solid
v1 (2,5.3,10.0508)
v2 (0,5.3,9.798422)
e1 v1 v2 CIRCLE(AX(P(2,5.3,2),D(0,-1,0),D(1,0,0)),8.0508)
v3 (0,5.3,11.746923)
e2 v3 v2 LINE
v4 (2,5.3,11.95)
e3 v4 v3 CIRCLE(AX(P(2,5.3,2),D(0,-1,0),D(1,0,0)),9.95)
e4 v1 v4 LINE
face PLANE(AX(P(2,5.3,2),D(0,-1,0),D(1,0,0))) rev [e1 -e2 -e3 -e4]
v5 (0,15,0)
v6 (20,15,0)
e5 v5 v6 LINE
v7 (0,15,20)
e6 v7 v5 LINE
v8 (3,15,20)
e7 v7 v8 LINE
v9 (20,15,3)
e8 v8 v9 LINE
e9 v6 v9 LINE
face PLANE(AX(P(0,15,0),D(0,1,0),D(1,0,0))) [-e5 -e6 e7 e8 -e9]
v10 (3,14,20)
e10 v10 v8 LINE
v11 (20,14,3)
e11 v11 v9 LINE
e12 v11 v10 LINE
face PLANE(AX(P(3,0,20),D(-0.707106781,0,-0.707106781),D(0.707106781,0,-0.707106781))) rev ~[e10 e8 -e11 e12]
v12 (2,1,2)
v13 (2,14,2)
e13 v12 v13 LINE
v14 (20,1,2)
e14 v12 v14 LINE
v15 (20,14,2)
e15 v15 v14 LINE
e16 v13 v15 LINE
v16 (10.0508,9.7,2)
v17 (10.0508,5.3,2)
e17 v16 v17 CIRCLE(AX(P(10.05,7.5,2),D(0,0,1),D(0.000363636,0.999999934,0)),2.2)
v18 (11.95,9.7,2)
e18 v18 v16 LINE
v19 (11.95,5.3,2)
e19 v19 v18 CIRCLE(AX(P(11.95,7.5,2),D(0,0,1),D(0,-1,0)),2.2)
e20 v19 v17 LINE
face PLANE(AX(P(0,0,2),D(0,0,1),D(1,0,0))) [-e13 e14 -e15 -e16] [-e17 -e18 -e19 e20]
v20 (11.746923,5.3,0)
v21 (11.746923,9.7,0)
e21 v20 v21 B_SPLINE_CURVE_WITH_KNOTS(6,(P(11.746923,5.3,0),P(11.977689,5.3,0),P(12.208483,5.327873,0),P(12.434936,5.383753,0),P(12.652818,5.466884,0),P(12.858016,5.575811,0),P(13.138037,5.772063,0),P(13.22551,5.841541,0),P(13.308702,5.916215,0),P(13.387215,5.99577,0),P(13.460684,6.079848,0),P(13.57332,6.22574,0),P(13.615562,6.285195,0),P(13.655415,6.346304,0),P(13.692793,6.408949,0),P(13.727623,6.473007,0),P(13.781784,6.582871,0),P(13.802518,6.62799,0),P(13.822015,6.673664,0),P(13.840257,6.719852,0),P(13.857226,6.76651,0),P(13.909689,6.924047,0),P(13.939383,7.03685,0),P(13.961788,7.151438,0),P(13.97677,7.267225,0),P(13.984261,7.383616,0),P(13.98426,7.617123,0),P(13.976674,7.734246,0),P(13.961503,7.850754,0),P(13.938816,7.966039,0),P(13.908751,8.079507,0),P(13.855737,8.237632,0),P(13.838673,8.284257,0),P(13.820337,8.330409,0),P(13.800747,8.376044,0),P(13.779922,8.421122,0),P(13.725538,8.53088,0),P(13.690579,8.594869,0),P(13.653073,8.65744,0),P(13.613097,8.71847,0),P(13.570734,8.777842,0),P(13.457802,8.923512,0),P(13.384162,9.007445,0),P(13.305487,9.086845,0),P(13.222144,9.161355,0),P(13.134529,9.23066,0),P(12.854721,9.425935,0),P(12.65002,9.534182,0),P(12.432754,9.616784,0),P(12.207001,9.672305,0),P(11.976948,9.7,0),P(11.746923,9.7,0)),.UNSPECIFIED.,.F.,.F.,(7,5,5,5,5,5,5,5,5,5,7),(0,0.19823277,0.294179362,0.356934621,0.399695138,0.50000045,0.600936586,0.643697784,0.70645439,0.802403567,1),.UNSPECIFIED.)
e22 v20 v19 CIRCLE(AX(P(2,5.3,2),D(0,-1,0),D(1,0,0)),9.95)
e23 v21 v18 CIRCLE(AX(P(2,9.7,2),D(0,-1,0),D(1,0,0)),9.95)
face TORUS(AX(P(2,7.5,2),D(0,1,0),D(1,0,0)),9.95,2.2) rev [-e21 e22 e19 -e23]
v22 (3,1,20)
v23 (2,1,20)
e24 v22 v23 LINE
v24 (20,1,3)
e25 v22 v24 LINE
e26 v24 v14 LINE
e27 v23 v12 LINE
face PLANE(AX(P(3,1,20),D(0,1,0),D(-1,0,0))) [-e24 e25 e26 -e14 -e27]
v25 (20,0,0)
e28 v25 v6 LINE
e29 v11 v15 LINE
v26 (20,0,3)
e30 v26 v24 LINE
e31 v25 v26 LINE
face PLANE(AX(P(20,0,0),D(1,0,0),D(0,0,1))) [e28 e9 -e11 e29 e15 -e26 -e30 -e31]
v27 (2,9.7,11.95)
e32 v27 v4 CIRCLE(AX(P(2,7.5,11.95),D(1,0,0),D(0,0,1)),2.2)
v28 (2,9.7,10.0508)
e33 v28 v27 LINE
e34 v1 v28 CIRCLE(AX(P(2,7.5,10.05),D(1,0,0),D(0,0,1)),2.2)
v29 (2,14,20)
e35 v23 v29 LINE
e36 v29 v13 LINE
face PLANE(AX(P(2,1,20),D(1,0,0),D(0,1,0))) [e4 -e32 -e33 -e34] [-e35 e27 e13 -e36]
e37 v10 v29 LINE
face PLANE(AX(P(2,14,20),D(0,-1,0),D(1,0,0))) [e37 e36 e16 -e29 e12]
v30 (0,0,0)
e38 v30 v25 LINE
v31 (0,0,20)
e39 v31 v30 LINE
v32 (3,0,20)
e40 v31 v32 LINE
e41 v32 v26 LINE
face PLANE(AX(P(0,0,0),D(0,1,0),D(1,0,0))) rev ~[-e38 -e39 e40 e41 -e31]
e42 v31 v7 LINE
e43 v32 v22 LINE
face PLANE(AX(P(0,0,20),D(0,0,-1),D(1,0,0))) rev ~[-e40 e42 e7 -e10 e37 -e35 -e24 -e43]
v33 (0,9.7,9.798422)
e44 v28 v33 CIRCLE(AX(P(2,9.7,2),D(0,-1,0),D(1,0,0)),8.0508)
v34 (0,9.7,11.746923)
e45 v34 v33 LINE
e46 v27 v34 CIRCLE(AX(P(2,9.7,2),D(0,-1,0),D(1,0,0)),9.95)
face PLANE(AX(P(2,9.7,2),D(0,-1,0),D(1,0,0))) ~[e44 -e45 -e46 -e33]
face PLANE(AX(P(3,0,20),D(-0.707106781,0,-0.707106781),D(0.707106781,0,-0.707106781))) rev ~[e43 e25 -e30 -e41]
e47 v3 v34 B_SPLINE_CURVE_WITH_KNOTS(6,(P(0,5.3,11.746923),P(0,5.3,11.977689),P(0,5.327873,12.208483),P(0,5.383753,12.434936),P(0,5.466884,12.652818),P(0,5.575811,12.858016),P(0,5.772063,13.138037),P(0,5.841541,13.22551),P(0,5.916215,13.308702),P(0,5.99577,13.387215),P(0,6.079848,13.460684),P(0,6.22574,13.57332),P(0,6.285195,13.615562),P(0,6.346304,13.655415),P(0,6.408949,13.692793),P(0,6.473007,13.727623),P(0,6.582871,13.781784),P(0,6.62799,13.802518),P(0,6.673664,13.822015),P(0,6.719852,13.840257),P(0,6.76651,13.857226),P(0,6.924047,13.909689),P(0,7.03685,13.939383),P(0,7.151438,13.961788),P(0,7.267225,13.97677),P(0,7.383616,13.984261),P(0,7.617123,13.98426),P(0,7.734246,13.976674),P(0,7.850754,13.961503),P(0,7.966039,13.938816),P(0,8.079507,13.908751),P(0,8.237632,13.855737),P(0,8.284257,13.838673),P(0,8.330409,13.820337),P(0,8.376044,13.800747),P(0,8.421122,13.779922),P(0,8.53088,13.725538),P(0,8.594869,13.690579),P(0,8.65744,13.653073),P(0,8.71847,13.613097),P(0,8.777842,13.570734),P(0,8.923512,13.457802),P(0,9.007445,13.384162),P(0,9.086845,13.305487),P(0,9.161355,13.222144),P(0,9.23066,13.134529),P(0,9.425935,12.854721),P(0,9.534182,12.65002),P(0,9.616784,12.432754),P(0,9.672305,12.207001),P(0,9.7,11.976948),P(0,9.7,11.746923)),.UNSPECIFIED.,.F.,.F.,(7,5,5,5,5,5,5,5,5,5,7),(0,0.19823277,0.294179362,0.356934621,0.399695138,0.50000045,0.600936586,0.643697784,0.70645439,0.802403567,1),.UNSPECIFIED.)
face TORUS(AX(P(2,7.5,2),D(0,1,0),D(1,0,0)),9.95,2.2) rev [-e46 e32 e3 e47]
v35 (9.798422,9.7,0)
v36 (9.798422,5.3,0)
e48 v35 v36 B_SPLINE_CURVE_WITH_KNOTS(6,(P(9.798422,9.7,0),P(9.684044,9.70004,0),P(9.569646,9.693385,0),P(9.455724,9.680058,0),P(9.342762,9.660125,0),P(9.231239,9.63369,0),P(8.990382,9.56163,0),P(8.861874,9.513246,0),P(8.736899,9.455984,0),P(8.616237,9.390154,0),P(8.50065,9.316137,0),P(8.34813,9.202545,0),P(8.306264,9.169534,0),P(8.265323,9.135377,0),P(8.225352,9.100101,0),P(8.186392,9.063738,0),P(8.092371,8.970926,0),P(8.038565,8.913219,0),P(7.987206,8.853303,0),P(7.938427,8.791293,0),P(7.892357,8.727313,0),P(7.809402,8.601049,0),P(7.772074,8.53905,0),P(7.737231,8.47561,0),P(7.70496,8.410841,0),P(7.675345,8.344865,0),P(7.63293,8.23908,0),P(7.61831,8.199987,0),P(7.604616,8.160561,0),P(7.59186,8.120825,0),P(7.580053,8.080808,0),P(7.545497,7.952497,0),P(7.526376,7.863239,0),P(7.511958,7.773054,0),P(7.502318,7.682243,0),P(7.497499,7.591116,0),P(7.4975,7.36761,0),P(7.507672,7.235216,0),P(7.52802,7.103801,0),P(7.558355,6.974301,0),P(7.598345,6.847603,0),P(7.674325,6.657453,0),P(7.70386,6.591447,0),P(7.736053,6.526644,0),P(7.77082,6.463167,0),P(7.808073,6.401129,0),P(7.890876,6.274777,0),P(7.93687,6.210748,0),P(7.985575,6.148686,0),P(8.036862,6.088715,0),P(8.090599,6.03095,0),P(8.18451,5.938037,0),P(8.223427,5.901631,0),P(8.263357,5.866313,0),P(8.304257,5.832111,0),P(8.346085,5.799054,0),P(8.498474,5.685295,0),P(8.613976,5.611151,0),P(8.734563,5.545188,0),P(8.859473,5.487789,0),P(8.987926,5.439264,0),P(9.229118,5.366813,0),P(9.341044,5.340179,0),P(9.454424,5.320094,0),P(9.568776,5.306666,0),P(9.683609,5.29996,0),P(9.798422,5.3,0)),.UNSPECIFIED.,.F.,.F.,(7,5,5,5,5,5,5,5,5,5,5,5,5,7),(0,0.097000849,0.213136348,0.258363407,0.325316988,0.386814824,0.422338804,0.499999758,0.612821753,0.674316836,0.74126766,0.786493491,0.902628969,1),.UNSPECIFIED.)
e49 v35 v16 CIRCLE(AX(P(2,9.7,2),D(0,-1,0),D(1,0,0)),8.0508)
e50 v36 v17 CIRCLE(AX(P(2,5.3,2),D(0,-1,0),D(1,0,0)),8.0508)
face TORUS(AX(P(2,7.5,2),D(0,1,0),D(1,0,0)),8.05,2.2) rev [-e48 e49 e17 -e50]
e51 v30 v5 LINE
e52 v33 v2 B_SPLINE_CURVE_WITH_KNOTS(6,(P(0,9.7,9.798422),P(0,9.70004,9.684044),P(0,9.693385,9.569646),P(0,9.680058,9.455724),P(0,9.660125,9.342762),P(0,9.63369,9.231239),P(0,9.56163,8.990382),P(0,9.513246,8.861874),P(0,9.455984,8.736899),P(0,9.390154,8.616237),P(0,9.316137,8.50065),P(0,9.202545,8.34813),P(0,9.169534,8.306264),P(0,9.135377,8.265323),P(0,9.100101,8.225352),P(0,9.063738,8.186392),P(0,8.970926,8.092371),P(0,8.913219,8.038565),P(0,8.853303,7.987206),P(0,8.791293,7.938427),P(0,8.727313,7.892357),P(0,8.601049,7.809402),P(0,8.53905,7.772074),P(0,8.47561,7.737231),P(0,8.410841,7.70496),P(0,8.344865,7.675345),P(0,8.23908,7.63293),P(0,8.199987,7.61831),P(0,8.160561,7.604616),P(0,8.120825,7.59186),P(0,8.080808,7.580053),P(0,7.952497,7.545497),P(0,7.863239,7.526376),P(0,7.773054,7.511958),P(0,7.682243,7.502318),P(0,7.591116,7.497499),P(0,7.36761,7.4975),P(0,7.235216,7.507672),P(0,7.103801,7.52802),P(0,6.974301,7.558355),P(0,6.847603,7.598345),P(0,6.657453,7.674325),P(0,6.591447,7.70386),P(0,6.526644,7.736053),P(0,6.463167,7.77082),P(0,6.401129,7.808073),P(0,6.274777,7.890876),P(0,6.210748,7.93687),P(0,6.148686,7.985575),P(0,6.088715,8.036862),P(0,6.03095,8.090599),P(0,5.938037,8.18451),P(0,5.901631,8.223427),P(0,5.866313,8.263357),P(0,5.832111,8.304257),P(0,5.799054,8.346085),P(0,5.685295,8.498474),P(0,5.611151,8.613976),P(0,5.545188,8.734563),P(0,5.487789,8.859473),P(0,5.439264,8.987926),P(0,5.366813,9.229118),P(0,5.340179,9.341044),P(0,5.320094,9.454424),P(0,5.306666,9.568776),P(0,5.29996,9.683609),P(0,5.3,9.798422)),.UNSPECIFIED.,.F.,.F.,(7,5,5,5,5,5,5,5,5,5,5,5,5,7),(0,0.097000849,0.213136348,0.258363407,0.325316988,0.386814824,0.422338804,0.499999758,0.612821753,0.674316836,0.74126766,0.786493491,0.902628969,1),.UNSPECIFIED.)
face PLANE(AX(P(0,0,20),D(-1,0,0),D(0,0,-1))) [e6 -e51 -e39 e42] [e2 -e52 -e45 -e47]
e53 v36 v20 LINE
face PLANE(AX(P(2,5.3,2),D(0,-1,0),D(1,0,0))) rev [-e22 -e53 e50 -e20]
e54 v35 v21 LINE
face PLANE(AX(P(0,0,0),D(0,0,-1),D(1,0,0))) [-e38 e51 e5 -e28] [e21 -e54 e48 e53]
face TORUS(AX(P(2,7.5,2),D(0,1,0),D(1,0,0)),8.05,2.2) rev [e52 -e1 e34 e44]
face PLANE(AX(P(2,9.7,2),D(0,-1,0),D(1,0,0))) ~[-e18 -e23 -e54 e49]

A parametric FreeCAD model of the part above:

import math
import FreeCAD as App
import Part
import Sketcher

doc = App.newDocument("Part")
body = doc.addObject("PartDesign::Body", "Body")

sketch1 = body.newObject("Sketcher::SketchObject", "Sketch")
sketch1.AttachmentSupport = (doc.getObject("XZ_Plane"), [""])
sketch1.MapMode = "FlatFace"
sketch1.addGeometry(Part.LineSegment(App.Vector(20, 0, 0), App.Vector(0, 0, 0)), False)
sketch1.addGeometry(Part.LineSegment(App.Vector(0, 0, 0), App.Vector(0, 20, 0)), False)
sketch1.addGeometry(Part.LineSegment(App.Vector(0, 20, 0), App.Vector(3, 20, 0)), False)
sketch1.addGeometry(Part.LineSegment(App.Vector(3, 20, 0), App.Vector(20, 3, 0)), False)
sketch1.addGeometry(Part.LineSegment(App.Vector(20, 3, 0), App.Vector(20, 0, 0)), False)
sketch1.addConstraint(Sketcher.Constraint("Coincident", 0, 2, 1, 1))
sketch1.addConstraint(Sketcher.Constraint("Coincident", 1, 2, 2, 1))
sketch1.addConstraint(Sketcher.Constraint("Coincident", 2, 2, 3, 1))
sketch1.addConstraint(Sketcher.Constraint("Coincident", 3, 2, 4, 1))
sketch1.addConstraint(Sketcher.Constraint("Coincident", 4, 2, 0, 1))
sketch1.addConstraint(Sketcher.Constraint("Horizontal", 0))
sketch1.addConstraint(Sketcher.Constraint("Vertical", 1))
sketch1.addConstraint(Sketcher.Constraint("Horizontal", 2))
sketch1.addConstraint(Sketcher.Constraint("Vertical", 4))
sketch1.addConstraint(Sketcher.Constraint("Coincident", 0, 2, -1, 1))
sketch1.addConstraint(Sketcher.Constraint("Equal", 0, 1))
sketch1.addConstraint(Sketcher.Constraint("Equal", 2, 4))
sketch1.addConstraint(Sketcher.Constraint("DistanceX", 0, 2, 0, 1, 20.0))
sketch1.addConstraint(Sketcher.Constraint("DistanceX", 2, 1, 2, 2, 3.0))
pad1 = body.newObject("PartDesign::Pad", "Pad")
pad1.Profile = sketch1
pad1.Length = 15
pad1.Reversed = True

sketch2 = body.newObject("Sketcher::SketchObject", "Sketch001")
sketch2.AttachmentSupport = (doc.getObject("XY_Plane"), [""])
sketch2.MapMode = "FlatFace"
sketch2.AttachmentOffset = App.Placement(App.Vector(0, 0, 20), App.Rotation())
sketch2.addGeometry(Part.LineSegment(App.Vector(2, 1, 0), App.Vector(20, 1, 0)), False)
sketch2.addGeometry(Part.LineSegment(App.Vector(20, 1, 0), App.Vector(20, 14, 0)), False)
sketch2.addGeometry(Part.LineSegment(App.Vector(20, 14, 0), App.Vector(2, 14, 0)), False)
sketch2.addGeometry(Part.LineSegment(App.Vector(2, 14, 0), App.Vector(2, 1, 0)), False)
sketch2.addConstraint(Sketcher.Constraint("Coincident", 0, 2, 1, 1))
sketch2.addConstraint(Sketcher.Constraint("Coincident", 1, 2, 2, 1))
sketch2.addConstraint(Sketcher.Constraint("Coincident", 2, 2, 3, 1))
sketch2.addConstraint(Sketcher.Constraint("Coincident", 3, 2, 0, 1))
sketch2.addConstraint(Sketcher.Constraint("Horizontal", 0))
sketch2.addConstraint(Sketcher.Constraint("Vertical", 1))
sketch2.addConstraint(Sketcher.Constraint("Horizontal", 2))
sketch2.addConstraint(Sketcher.Constraint("Vertical", 3))
sketch2.addConstraint(Sketcher.Constraint("DistanceX", 0, 1, 0, 2, 18.0))
sketch2.addConstraint(Sketcher.Constraint("DistanceY", 1, 1, 1, 2, 13.0))
sketch2.addConstraint(Sketcher.Constraint("DistanceX", -1, 1, 0, 2, 20.0))
sketch2.addConstraint(Sketcher.Constraint("DistanceY", -1, 1, 0, 2, 1.0))
pocket1 = body.newObject("PartDesign::Pocket", "Pocket")
pocket1.Profile = sketch2
pocket1.Length = 18

sketch3 = body.newObject("Sketcher::SketchObject", "Sketch002")
sketch3.AttachmentSupport = (doc.getObject("XY_Plane"), [""])
sketch3.MapMode = "FlatFace"
sketch3.AttachmentOffset = App.Placement(App.Vector(0, 0, 2), App.Rotation())
sketch3.addGeometry(Part.LineSegment(App.Vector(11.9, 9.7, 0), App.Vector(10.1, 9.7, 0)), False)
sketch3.addGeometry(Part.ArcOfCircle(Part.Circle(App.Vector(10.1, 7.5, 0), App.Vector(0, 0, 1), 2.2), math.radians(90), math.radians(270)), False)
sketch3.addGeometry(Part.LineSegment(App.Vector(10.1, 5.3, 0), App.Vector(11.9, 5.3, 0)), False)
sketch3.addGeometry(Part.ArcOfCircle(Part.Circle(App.Vector(11.9, 7.5, 0), App.Vector(0, 0, 1), 2.2), math.radians(-90), math.radians(90)), False)
sketch3.addGeometry(Part.LineSegment(App.Vector(2, 9.7, 0), App.Vector(2, 5.3, 0)), True)
sketch3.addConstraint(Sketcher.Constraint("Tangent", 0, 2, 1, 1))
sketch3.addConstraint(Sketcher.Constraint("Tangent", 1, 2, 2, 1))
sketch3.addConstraint(Sketcher.Constraint("Tangent", 2, 2, 3, 1))
sketch3.addConstraint(Sketcher.Constraint("Tangent", 3, 2, 0, 1))
sketch3.addConstraint(Sketcher.Constraint("Horizontal", 0))
sketch3.addConstraint(Sketcher.Constraint("Horizontal", 2))
sketch3.addConstraint(Sketcher.Constraint("Vertical", 4))
sketch3.addConstraint(Sketcher.Constraint("Horizontal", 3, 2, 4, 1))
sketch3.addConstraint(Sketcher.Constraint("Horizontal", 2, 2, 4, 2))
sketch3.addConstraint(Sketcher.Constraint("Radius", 1, 2.2))
sketch3.addConstraint(Sketcher.Constraint("DistanceX", 1, 3, 3, 3, 1.9))
sketch3.addConstraint(Sketcher.Constraint("DistanceX", 4, 1, 1, 3, 8.05))
sketch3.addConstraint(Sketcher.Constraint("DistanceX", -1, 1, 4, 1, 2.0))
sketch3.addConstraint(Sketcher.Constraint("DistanceY", -1, 1, 1, 3, 7.5))
groove = body.newObject("PartDesign::Groove", "Groove")
groove.Profile = sketch3
groove.ReferenceAxis = (sketch3, ["Axis0"])
groove.Angle = 360

doc.recompute()
